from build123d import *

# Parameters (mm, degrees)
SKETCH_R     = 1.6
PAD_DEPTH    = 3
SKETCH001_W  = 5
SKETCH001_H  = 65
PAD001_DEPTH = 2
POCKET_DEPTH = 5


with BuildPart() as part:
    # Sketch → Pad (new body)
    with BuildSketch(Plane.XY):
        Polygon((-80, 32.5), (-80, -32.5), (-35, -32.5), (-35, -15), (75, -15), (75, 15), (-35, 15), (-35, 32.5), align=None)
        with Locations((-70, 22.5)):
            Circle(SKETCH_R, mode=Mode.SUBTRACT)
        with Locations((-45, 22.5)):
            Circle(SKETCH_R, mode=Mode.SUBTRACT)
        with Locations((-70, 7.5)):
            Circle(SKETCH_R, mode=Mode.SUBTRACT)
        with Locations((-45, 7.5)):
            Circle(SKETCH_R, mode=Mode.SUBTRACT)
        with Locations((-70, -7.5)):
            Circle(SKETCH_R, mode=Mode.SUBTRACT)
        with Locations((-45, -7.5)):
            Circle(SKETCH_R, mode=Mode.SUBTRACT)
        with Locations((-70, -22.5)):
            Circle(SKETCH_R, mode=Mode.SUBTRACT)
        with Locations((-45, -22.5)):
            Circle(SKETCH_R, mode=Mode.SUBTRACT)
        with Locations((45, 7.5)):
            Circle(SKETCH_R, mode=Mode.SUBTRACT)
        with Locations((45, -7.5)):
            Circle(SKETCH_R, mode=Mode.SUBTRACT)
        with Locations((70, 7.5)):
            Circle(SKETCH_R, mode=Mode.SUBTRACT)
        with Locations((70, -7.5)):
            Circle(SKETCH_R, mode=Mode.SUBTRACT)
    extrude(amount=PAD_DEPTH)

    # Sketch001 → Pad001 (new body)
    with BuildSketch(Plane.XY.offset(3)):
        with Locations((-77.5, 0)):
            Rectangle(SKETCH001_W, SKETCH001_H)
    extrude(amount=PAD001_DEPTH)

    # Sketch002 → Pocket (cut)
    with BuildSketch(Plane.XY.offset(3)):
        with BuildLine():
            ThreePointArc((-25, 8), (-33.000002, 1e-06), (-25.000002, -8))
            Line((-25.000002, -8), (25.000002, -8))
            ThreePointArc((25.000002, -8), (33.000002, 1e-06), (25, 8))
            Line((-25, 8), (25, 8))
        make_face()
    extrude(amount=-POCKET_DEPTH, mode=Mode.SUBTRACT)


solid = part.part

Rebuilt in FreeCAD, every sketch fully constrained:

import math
import FreeCAD as App
import Part
import Sketcher

V = App.Vector
Q = App.Units.Quantity

doc = App.newDocument("Part")
params = doc.addObject("Spreadsheet::Sheet", "Params")
for row, (alias, value) in enumerate([
    ("sketch1_diameter", "3.2 mm"),
    ("sketch1_width", "45 mm"),
    ("sketch1_width2", "110 mm"),
    ("sketch1_height", "65 mm"),
    ("sketch1_height2", "30 mm"),
    ("pad1_length", "3 mm"),
    ("sketch2_width", "5 mm"),
    ("sketch2_height", "65 mm"),
    ("pad2_length", "2 mm"),
    ("sketch3_radius", "8 mm"),
    ("sketch3_width", "50 mm"),
    ("pocket1_length", "5 mm"),
], start=1):
    params.set(f"A{row}", alias)
    params.set(f"B{row}", "=" + value)
    params.setAlias(f"B{row}", alias)

body = doc.addObject("PartDesign::Body", "Body")

# Sketch on XY plane
sketch1 = body.newObject("Sketcher::SketchObject", "Sketch")
sketch1.AttachmentSupport = (doc.getObject("XY_Plane"), [""])
sketch1.MapMode = "FlatFace"
sketch1.addGeometry([
    Part.LineSegment(V(-80, 32.5, 0), V(-80, -32.5, 0)),  # 0
    Part.LineSegment(V(-80, -32.5, 0), V(-35, -32.5, 0)),  # 1
    Part.LineSegment(V(-35, -32.5, 0), V(-35, -15, 0)),  # 2
    Part.LineSegment(V(-35, -15, 0), V(75, -15, 0)),  # 3
    Part.LineSegment(V(75, -15, 0), V(75, 15, 0)),  # 4
    Part.LineSegment(V(75, 15, 0), V(-35, 15, 0)),  # 5
    Part.LineSegment(V(-35, 15, 0), V(-35, 32.5, 0)),  # 6
    Part.LineSegment(V(-35, 32.5, 0), V(-80, 32.5, 0)),  # 7
    Part.Circle(V(-70, -22.5, 0), V(0, 0, 1), 1.6),  # 8
    Part.Circle(V(-45, -22.5, 0), V(0, 0, 1), 1.6),  # 9
    Part.Circle(V(-70, -7.5, 0), V(0, 0, 1), 1.6),  # 10
    Part.Circle(V(-45, -7.5, 0), V(0, 0, 1), 1.6),  # 11
    Part.Circle(V(45, -7.5, 0), V(0, 0, 1), 1.6),  # 12
    Part.Circle(V(70, -7.5, 0), V(0, 0, 1), 1.6),  # 13
    Part.Circle(V(-70, 7.5, 0), V(0, 0, 1), 1.6),  # 14
    Part.Circle(V(-45, 7.5, 0), V(0, 0, 1), 1.6),  # 15
    Part.Circle(V(-70, 22.5, 0), V(0, 0, 1), 1.6),  # 16
    Part.Circle(V(-45, 22.5, 0), V(0, 0, 1), 1.6),  # 17
    Part.Circle(V(45, 7.5, 0), V(0, 0, 1), 1.6),  # 18
    Part.Circle(V(70, 7.5, 0), V(0, 0, 1), 1.6),  # 19
], False)
sketch1.addConstraint([
    Sketcher.Constraint("Coincident", 0, 2, 1, 1),
    Sketcher.Constraint("Coincident", 1, 2, 2, 1),
    Sketcher.Constraint("Coincident", 2, 2, 3, 1),
    Sketcher.Constraint("Coincident", 3, 2, 4, 1),
    Sketcher.Constraint("Coincident", 4, 2, 5, 1),
    Sketcher.Constraint("Coincident", 5, 2, 6, 1),
    Sketcher.Constraint("Coincident", 6, 2, 7, 1),
    Sketcher.Constraint("Coincident", 7, 2, 0, 1),
    Sketcher.Constraint("Vertical", 0),
    Sketcher.Constraint("Horizontal", 1),
    Sketcher.Constraint("Vertical", 2),
    Sketcher.Constraint("Horizontal", 3),
    Sketcher.Constraint("Vertical", 4),
    Sketcher.Constraint("Horizontal", 5),
    Sketcher.Constraint("Vertical", 6),
    Sketcher.Constraint("Horizontal", 7),
    Sketcher.Constraint("Equal", 8, 9),
    Sketcher.Constraint("Equal", 9, 10),
    Sketcher.Constraint("Equal", 10, 11),
    Sketcher.Constraint("Equal", 11, 12),
    Sketcher.Constraint("Equal", 12, 13),
    Sketcher.Constraint("Equal", 13, 14),
    Sketcher.Constraint("Equal", 14, 15),
    Sketcher.Constraint("Equal", 15, 16),
    Sketcher.Constraint("Equal", 16, 17),
    Sketcher.Constraint("Equal", 17, 18),
    Sketcher.Constraint("Equal", 18, 19),
    Sketcher.Constraint("Symmetric", 13, 3, 14, 3, -1, 1),
    Sketcher.Constraint("Symmetric", 12, 3, 15, 3, -1, 1),
    Sketcher.Constraint("Symmetric", 11, 3, 18, 3, -1, 1),
    Sketcher.Constraint("Symmetric", 10, 3, 19, 3, -1, 1),
    Sketcher.Constraint("Symmetric", 11, 3, 12, 3, -2),
    Sketcher.Constraint("Symmetric", 10, 3, 13, 3, -2),
    Sketcher.Constraint("Symmetric", 8, 3, 16, 3, -1),
    Sketcher.Constraint("Symmetric", 9, 3, 17, 3, -1),
    Sketcher.Constraint("Symmetric", 2, 2, 5, 2, -1),
    Sketcher.Constraint("Horizontal", 8, 3, 9, 3),
    Sketcher.Constraint("Horizontal", 10, 3, 11, 3),
    Sketcher.Constraint("Vertical", 8, 3, 10, 3),
    Sketcher.Constraint("Vertical", 9, 3, 11, 3),
    Sketcher.Constraint("Equal", 2, 6),
    Sketcher.Constraint("Diameter", 8, Q("3.2 mm")),
    Sketcher.Constraint("DistanceX", 1, 1, 1, 2, Q("45 mm")),
    Sketcher.Constraint("DistanceX", 3, 1, 3, 2, Q("110 mm")),
    Sketcher.Constraint("DistanceY", 0, 2, 0, 1, Q("65 mm")),
    Sketcher.Constraint("DistanceY", 4, 1, 4, 2, Q("30 mm")),
    Sketcher.Constraint("DistanceX", 8, 3, -1, 1, Q("70 mm")),
    Sketcher.Constraint("DistanceX", 9, 3, -1, 1, Q("45 mm")),
    Sketcher.Constraint("DistanceX", 0, 2, -1, 1, Q("80 mm")),
    Sketcher.Constraint("DistanceY", 8, 3, 10, 3, Q("15 mm")),
    Sketcher.Constraint("DistanceY", 10, 3, 14, 3, Q("15 mm")),
])
sketch1.setExpression("Constraints[41]", "Params.sketch1_diameter")
sketch1.setExpression("Constraints[42]", "Params.sketch1_width")
sketch1.setExpression("Constraints[43]", "Params.sketch1_width2")
sketch1.setExpression("Constraints[44]", "Params.sketch1_height")
sketch1.setExpression("Constraints[45]", "Params.sketch1_height2")
pad1 = body.newObject("PartDesign::Pad", "Pad")
pad1.Profile = sketch1
pad1.setExpression("Length", "Params.pad1_length")

# Sketch on XY plane
sketch2 = body.newObject("Sketcher::SketchObject", "Sketch001")
sketch2.AttachmentSupport = (doc.getObject("XY_Plane"), [""])
sketch2.MapMode = "FlatFace"
sketch2.AttachmentOffset = App.Placement(V(0, 0, 3), App.Rotation())
sketch2.addGeometry([
    Part.LineSegment(V(-80, 32.5, 0), V(-80, -32.5, 0)),
    Part.LineSegment(V(-80, -32.5, 0), V(-75, -32.5, 0)),
    Part.LineSegment(V(-75, -32.5, 0), V(-75, 32.5, 0)),
    Part.LineSegment(V(-75, 32.5, 0), V(-80, 32.5, 0)),
], False)
sketch2.addConstraint([
    Sketcher.Constraint("Coincident", 0, 2, 1, 1),
    Sketcher.Constraint("Coincident", 1, 2, 2, 1),
    Sketcher.Constraint("Coincident", 2, 2, 3, 1),
    Sketcher.Constraint("Coincident", 3, 2, 0, 1),
    Sketcher.Constraint("Vertical", 0),
    Sketcher.Constraint("Horizontal", 1),
    Sketcher.Constraint("Vertical", 2),
    Sketcher.Constraint("Horizontal", 3),
    Sketcher.Constraint("DistanceX", 1, 1, 1, 2, Q("5 mm")),
    Sketcher.Constraint("DistanceY", 0, 2, 0, 1, Q("65 mm")),
    Sketcher.Constraint("DistanceX", 0, 2, -1, 1, Q("80 mm")),
    Sketcher.Constraint("DistanceY", 0, 2, -1, 1, Q("32.5 mm")),
])
sketch2.setExpression("Constraints[8]", "Params.sketch2_width")
sketch2.setExpression("Constraints[9]", "Params.sketch2_height")
pad2 = body.newObject("PartDesign::Pad", "Pad001")
pad2.Profile = sketch2
pad2.setExpression("Length", "Params.pad2_length")

# Sketch on XY plane
sketch3 = body.newObject("Sketcher::SketchObject", "Sketch002")
sketch3.AttachmentSupport = (doc.getObject("XY_Plane"), [""])
sketch3.MapMode = "FlatFace"
sketch3.AttachmentOffset = App.Placement(V(0, 0, 3), App.Rotation())
sketch3.addGeometry([
    Part.ArcOfCircle(Part.Circle(V(-25.000002, 0, 0), V(0, 0, 1), 8), math.radians(89.999986), math.radians(270)),
    Part.LineSegment(V(-25.000002, -8, 0), V(25.000002, -8, 0)),
    Part.ArcOfCircle(Part.Circle(V(25.000002, 0, 0), V(0, 0, 1), 8), math.radians(-90), math.radians(90.000014)),
    Part.LineSegment(V(25, 8, 0), V(-25, 8, 0)),
], False)
sketch3.addConstraint([
    Sketcher.Constraint("Tangent", 0, 2, 1, 1),
    Sketcher.Constraint("Tangent", 1, 2, 2, 1),
    Sketcher.Constraint("Tangent", 2, 2, 3, 1),
    Sketcher.Constraint("Tangent", 3, 2, 0, 1),
    Sketcher.Constraint("Horizontal", 1),
    Sketcher.Constraint("Horizontal", 3),
    Sketcher.Constraint("Symmetric", 0, 3, 2, 3, -1, 1),
    Sketcher.Constraint("Radius", 0, Q("8 mm")),
    Sketcher.Constraint("DistanceX", 3, 2, 3, 1, Q("50 mm")),
])
sketch3.setExpression("Constraints[7]", "Params.sketch3_radius")
sketch3.setExpression("Constraints[8]", "Params.sketch3_width")
pocket1 = body.newObject("PartDesign::Pocket", "Pocket")
pocket1.Profile = sketch3
pocket1.setExpression("Length", "Params.pocket1_length")

doc.recompute()
